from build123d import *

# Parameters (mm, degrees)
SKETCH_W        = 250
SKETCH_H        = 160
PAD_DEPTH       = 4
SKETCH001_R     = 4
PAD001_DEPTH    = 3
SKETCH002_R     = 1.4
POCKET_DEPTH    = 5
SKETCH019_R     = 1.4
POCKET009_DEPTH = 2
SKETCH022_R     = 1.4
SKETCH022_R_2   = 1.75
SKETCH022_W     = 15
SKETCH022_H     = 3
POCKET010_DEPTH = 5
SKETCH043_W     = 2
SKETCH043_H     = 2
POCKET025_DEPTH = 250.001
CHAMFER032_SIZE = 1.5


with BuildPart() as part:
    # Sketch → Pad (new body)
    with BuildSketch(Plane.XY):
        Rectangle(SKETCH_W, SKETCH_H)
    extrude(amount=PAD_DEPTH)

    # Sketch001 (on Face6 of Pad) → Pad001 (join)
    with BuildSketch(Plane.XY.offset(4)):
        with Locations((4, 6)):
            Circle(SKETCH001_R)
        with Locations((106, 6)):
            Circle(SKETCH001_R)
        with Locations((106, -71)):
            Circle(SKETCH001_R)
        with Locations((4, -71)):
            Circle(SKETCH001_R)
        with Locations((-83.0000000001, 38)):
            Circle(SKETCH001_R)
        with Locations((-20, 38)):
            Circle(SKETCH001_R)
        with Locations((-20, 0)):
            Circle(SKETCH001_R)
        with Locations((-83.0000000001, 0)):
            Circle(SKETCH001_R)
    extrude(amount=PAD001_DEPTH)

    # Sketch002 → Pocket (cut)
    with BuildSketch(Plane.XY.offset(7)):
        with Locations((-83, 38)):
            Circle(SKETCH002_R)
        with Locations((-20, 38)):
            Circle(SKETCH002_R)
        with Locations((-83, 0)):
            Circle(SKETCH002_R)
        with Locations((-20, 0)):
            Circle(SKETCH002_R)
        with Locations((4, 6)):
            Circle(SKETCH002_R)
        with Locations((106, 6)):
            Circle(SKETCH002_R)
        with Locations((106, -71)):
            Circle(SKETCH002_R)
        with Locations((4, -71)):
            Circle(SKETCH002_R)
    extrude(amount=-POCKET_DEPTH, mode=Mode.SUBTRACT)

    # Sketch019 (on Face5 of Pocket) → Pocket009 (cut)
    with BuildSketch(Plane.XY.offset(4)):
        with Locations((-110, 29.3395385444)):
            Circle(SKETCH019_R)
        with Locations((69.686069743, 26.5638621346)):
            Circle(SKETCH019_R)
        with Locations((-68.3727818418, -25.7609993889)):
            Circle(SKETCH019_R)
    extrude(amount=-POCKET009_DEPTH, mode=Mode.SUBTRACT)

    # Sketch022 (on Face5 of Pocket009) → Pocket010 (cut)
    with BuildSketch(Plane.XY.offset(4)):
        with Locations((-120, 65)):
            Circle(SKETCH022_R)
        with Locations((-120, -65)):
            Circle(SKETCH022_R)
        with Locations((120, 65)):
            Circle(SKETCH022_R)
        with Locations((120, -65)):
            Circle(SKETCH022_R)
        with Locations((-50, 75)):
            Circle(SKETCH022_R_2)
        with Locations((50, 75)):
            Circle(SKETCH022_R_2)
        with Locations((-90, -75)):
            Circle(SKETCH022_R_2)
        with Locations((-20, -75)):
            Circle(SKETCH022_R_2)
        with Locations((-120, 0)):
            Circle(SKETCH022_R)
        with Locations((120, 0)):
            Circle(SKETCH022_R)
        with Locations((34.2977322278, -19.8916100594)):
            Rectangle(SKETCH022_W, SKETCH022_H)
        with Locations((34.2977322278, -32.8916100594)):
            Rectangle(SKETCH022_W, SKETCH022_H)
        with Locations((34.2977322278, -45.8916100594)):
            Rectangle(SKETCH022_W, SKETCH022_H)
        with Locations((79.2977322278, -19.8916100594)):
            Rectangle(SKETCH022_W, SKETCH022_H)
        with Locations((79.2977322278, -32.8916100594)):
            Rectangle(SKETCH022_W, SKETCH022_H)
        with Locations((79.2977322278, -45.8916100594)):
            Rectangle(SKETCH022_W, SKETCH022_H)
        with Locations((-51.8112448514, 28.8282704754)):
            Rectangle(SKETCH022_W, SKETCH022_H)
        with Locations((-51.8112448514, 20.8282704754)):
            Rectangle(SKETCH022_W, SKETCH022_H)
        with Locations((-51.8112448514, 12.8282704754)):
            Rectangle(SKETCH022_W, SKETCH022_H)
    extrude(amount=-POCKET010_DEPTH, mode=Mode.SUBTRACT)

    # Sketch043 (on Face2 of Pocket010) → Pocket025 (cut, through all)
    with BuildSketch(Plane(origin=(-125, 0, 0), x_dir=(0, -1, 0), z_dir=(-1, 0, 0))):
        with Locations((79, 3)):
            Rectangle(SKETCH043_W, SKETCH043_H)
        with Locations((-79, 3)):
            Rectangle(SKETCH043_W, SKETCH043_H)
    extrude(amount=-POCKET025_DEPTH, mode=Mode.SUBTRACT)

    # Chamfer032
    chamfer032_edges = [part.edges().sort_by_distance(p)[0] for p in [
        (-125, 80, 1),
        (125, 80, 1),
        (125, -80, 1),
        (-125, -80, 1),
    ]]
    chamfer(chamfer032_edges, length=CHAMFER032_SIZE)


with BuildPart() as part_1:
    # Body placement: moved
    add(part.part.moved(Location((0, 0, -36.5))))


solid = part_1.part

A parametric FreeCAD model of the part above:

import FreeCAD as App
import Part
import Sketcher

V = App.Vector
Q = App.Units.Quantity


def edges_at(feature, points):
    """Names of the edges that pass closest to the given points."""
    edges = feature.Shape.Edges
    near = lambda p: min(range(len(edges)), key=lambda i: edges[i].distToShape(Part.Vertex(*p))[0])
    return sorted({f"Edge{near(p) + 1}" for p in points})

doc = App.newDocument("Part")
body = doc.addObject("PartDesign::Body", "Body")

# Sketch on XY plane
sketch1 = body.newObject("Sketcher::SketchObject", "Sketch")
sketch1.AttachmentSupport = (doc.getObject("XY_Plane"), [""])
sketch1.MapMode = "FlatFace"
sketch1.addGeometry(Part.LineSegment(V(-125, 80, 0), V(-125, -80, 0)), False)
sketch1.addGeometry(Part.LineSegment(V(-125, -80, 0), V(125, -80, 0)), False)
sketch1.addGeometry(Part.LineSegment(V(125, -80, 0), V(125, 80, 0)), False)
sketch1.addGeometry(Part.LineSegment(V(125, 80, 0), V(-125, 80, 0)), False)
sketch1.addConstraint(Sketcher.Constraint("Coincident", 0, 2, 1, 1))
sketch1.addConstraint(Sketcher.Constraint("Coincident", 1, 2, 2, 1))
sketch1.addConstraint(Sketcher.Constraint("Coincident", 2, 2, 3, 1))
sketch1.addConstraint(Sketcher.Constraint("Coincident", 3, 2, 0, 1))
sketch1.addConstraint(Sketcher.Constraint("Vertical", 0))
sketch1.addConstraint(Sketcher.Constraint("Horizontal", 1))
sketch1.addConstraint(Sketcher.Constraint("Vertical", 2))
sketch1.addConstraint(Sketcher.Constraint("Horizontal", 3))
sketch1.addConstraint(Sketcher.Constraint("Symmetric", 0, 2, 2, 2, -1, 1))
sketch1.addConstraint(Sketcher.Constraint("DistanceX", 1, 1, 1, 2, Q("250 mm")))
sketch1.addConstraint(Sketcher.Constraint("DistanceY", 0, 2, 0, 1, Q("160 mm")))
pad1 = body.newObject("PartDesign::Pad", "Pad")
pad1.Profile = sketch1
pad1.Length = 4

# Sketch on XY plane
sketch2 = body.newObject("Sketcher::SketchObject", "Sketch001")
sketch2.AttachmentSupport = (doc.getObject("XY_Plane"), [""])
sketch2.MapMode = "FlatFace"
sketch2.AttachmentOffset = App.Placement(V(0, 0, 4), App.Rotation())
sketch2.addGeometry(Part.Circle(V(4, 6, 0), V(0, 0, 1), 4), False)
sketch2.addGeometry(Part.Circle(V(106, 6, 0), V(0, 0, 1), 4), False)
sketch2.addGeometry(Part.Circle(V(106, -71, 0), V(0, 0, 1), 4), False)
sketch2.addGeometry(Part.Circle(V(4, -71, 0), V(0, 0, 1), 4), False)
sketch2.addGeometry(Part.Circle(V(-83, 38, 0), V(0, 0, 1), 4), False)
sketch2.addGeometry(Part.Circle(V(-20, 38, 0), V(0, 0, 1), 4), False)
sketch2.addGeometry(Part.Circle(V(-20, 0, 0), V(0, 0, 1), 4), False)
sketch2.addGeometry(Part.Circle(V(-83, 0, 0), V(0, 0, 1), 4), False)
sketch2.addConstraint(Sketcher.Constraint("Equal", 0, 1))
sketch2.addConstraint(Sketcher.Constraint("Equal", 1, 2))
sketch2.addConstraint(Sketcher.Constraint("Equal", 2, 3))
sketch2.addConstraint(Sketcher.Constraint("Equal", 3, 4))
sketch2.addConstraint(Sketcher.Constraint("Equal", 4, 5))
sketch2.addConstraint(Sketcher.Constraint("Equal", 5, 6))
sketch2.addConstraint(Sketcher.Constraint("Equal", 6, 7))
sketch2.addConstraint(Sketcher.Constraint("PointOnObject", 6, 3, -1))
sketch2.addConstraint(Sketcher.Constraint("PointOnObject", 7, 3, -1))
sketch2.addConstraint(Sketcher.Constraint("Horizontal", 0, 3, 1, 3))
sketch2.addConstraint(Sketcher.Constraint("Horizontal", 2, 3, 3, 3))
sketch2.addConstraint(Sketcher.Constraint("Horizontal", 4, 3, 5, 3))
sketch2.addConstraint(Sketcher.Constraint("Vertical", 1, 3, 2, 3))
sketch2.addConstraint(Sketcher.Constraint("Vertical", 0, 3, 3, 3))
sketch2.addConstraint(Sketcher.Constraint("Vertical", 5, 3, 6, 3))
sketch2.addConstraint(Sketcher.Constraint("Vertical", 4, 3, 7, 3))
sketch2.addConstraint(Sketcher.Constraint("Diameter", 0, Q("8 mm")))
sketch2.addConstraint(Sketcher.Constraint("DistanceX", -1, 1, 0, 3, Q("4 mm")))
sketch2.addConstraint(Sketcher.Constraint("DistanceY", -1, 1, 0, 3, Q("6 mm")))
sketch2.addConstraint(Sketcher.Constraint("DistanceX", -1, 1, 1, 3, Q("106 mm")))
sketch2.addConstraint(Sketcher.Constraint("DistanceY", 2, 3, -1, 1, Q("71 mm")))
sketch2.addConstraint(Sketcher.Constraint("DistanceX", 4, 3, -1, 1, Q("83 mm")))
sketch2.addConstraint(Sketcher.Constraint("DistanceY", -1, 1, 4, 3, Q("38 mm")))
sketch2.addConstraint(Sketcher.Constraint("DistanceX", 5, 3, -1, 1, Q("20 mm")))
pad2 = body.newObject("PartDesign::Pad", "Pad001")
pad2.Profile = sketch2
pad2.Length = 3

# Sketch on XY plane
sketch3 = body.newObject("Sketcher::SketchObject", "Sketch002")
sketch3.AttachmentSupport = (doc.getObject("XY_Plane"), [""])
sketch3.MapMode = "FlatFace"
sketch3.AttachmentOffset = App.Placement(V(0, 0, 7), App.Rotation())
sketch3.addGeometry(Part.Circle(V(-83, 38, 0), V(0, 0, 1), 1.4), False)
sketch3.addGeometry(Part.Circle(V(-20, 38, 0), V(0, 0, 1), 1.4), False)
sketch3.addGeometry(Part.Circle(V(-83, 0, 0), V(0, 0, 1), 1.4), False)
sketch3.addGeometry(Part.Circle(V(-20, 0, 0), V(0, 0, 1), 1.4), False)
sketch3.addGeometry(Part.Circle(V(4, 6, 0), V(0, 0, 1), 1.4), False)
sketch3.addGeometry(Part.Circle(V(106, 6, 0), V(0, 0, 1), 1.4), False)
sketch3.addGeometry(Part.Circle(V(106, -71, 0), V(0, 0, 1), 1.4), False)
sketch3.addGeometry(Part.Circle(V(4, -71, 0), V(0, 0, 1), 1.4), False)
sketch3.addConstraint(Sketcher.Constraint("Equal", 0, 1))
sketch3.addConstraint(Sketcher.Constraint("Equal", 1, 2))
sketch3.addConstraint(Sketcher.Constraint("Equal", 2, 3))
sketch3.addConstraint(Sketcher.Constraint("Equal", 3, 4))
sketch3.addConstraint(Sketcher.Constraint("Equal", 4, 5))
sketch3.addConstraint(Sketcher.Constraint("Equal", 5, 6))
sketch3.addConstraint(Sketcher.Constraint("Equal", 6, 7))
sketch3.addConstraint(Sketcher.Constraint("PointOnObject", 2, 3, -1))
sketch3.addConstraint(Sketcher.Constraint("PointOnObject", 3, 3, -1))
sketch3.addConstraint(Sketcher.Constraint("Horizontal", 0, 3, 1, 3))
sketch3.addConstraint(Sketcher.Constraint("Horizontal", 4, 3, 5, 3))
sketch3.addConstraint(Sketcher.Constraint("Horizontal", 6, 3, 7, 3))
sketch3.addConstraint(Sketcher.Constraint("Vertical", 0, 3, 2, 3))
sketch3.addConstraint(Sketcher.Constraint("Vertical", 1, 3, 3, 3))
sketch3.addConstraint(Sketcher.Constraint("Vertical", 5, 3, 6, 3))
sketch3.addConstraint(Sketcher.Constraint("Vertical", 4, 3, 7, 3))
sketch3.addConstraint(Sketcher.Constraint("Diameter", 0, Q("2.8 mm")))
sketch3.addConstraint(Sketcher.Constraint("DistanceX", 0, 3, -1, 1, Q("83 mm")))
sketch3.addConstraint(Sketcher.Constraint("DistanceY", -1, 1, 0, 3, Q("38 mm")))
sketch3.addConstraint(Sketcher.Constraint("DistanceX", 1, 3, -1, 1, Q("20 mm")))
sketch3.addConstraint(Sketcher.Constraint("DistanceX", -1, 1, 4, 3, Q("4 mm")))
sketch3.addConstraint(Sketcher.Constraint("DistanceY", -1, 1, 4, 3, Q("6 mm")))
sketch3.addConstraint(Sketcher.Constraint("DistanceX", -1, 1, 5, 3, Q("106 mm")))
sketch3.addConstraint(Sketcher.Constraint("DistanceY", 6, 3, -1, 1, Q("71 mm")))
pocket1 = body.newObject("PartDesign::Pocket", "Pocket")
pocket1.Profile = sketch3
pocket1.Length = 5

# Sketch on XY plane
sketch4 = body.newObject("Sketcher::SketchObject", "Sketch003")
sketch4.AttachmentSupport = (doc.getObject("XY_Plane"), [""])
sketch4.MapMode = "FlatFace"
sketch4.AttachmentOffset = App.Placement(V(0, 0, 4), App.Rotation())
sketch4.addGeometry(Part.Circle(V(-110, 29.3, 0), V(0, 0, 1), 1.4), False)
sketch4.addGeometry(Part.Circle(V(69.7, 26.6, 0), V(0, 0, 1), 1.4), False)
sketch4.addGeometry(Part.Circle(V(-68.4, -25.8, 0), V(0, 0, 1), 1.4), False)
sketch4.addConstraint(Sketcher.Constraint("Equal", 0, 1))
sketch4.addConstraint(Sketcher.Constraint("Equal", 1, 2))
sketch4.addConstraint(Sketcher.Constraint("Diameter", 0, Q("2.8 mm")))
sketch4.addConstraint(Sketcher.Constraint("DistanceX", 0, 3, -1, 1, Q("110 mm")))
sketch4.addConstraint(Sketcher.Constraint("DistanceY", 2, 3, -1, 1, Q("25.760999 mm")))
sketch4.addConstraint(Sketcher.Constraint("DistanceY", -1, 1, 0, 3, Q("29.339539 mm")))
sketch4.addConstraint(Sketcher.Constraint("DistanceX", -1, 1, 1, 3, Q("69.68607 mm")))
sketch4.addConstraint(Sketcher.Constraint("DistanceX", 2, 3, -1, 1, Q("68.372782 mm")))
sketch4.addConstraint(Sketcher.Constraint("DistanceY", 2, 3, 1, 3, Q("52.324862 mm")))
pocket2 = body.newObject("PartDesign::Pocket", "Pocket001")
pocket2.Profile = sketch4
pocket2.Length = 2

# Sketch on XY plane
sketch5 = body.newObject("Sketcher::SketchObject", "Sketch004")
sketch5.AttachmentSupport = (doc.getObject("XY_Plane"), [""])
sketch5.MapMode = "FlatFace"
sketch5.AttachmentOffset = App.Placement(V(0, 0, 4), App.Rotation())
sketch5.addGeometry(Part.Circle(V(-120, 65, 0), V(0, 0, 1), 1.4), False)
sketch5.addGeometry(Part.Circle(V(-120, -65, 0), V(0, 0, 1), 1.4), False)
sketch5.addGeometry(Part.Circle(V(120, 65, 0), V(0, 0, 1), 1.4), False)
sketch5.addGeometry(Part.Circle(V(120, -65, 0), V(0, 0, 1), 1.4), False)
sketch5.addGeometry(Part.Circle(V(-50, 75, 0), V(0, 0, 1), 1.8), False)
sketch5.addGeometry(Part.Circle(V(50, 75, 0), V(0, 0, 1), 1.8), False)
sketch5.addGeometry(Part.Circle(V(-90, -75, 0), V(0, 0, 1), 1.8), False)
sketch5.addGeometry(Part.Circle(V(-20, -75, 0), V(0, 0, 1), 1.8), False)
sketch5.addGeometry(Part.Circle(V(-120, 0, 0), V(0, 0, 1), 1.4), False)
sketch5.addGeometry(Part.Circle(V(120, 0, 0), V(0, 0, 1), 1.4), False)
sketch5.addGeometry(Part.LineSegment(V(26.8, -18.4, 0), V(26.8, -21.4, 0)), False)
sketch5.addGeometry(Part.LineSegment(V(26.8, -21.4, 0), V(41.8, -21.4, 0)), False)
sketch5.addGeometry(Part.LineSegment(V(41.8, -21.4, 0), V(41.8, -18.4, 0)), False)
sketch5.addGeometry(Part.LineSegment(V(41.8, -18.4, 0), V(26.8, -18.4, 0)), False)
sketch5.addGeometry(Part.LineSegment(V(26.8, -31.4, 0), V(26.8, -34.4, 0)), False)
sketch5.addGeometry(Part.LineSegment(V(26.8, -34.4, 0), V(41.8, -34.4, 0)), False)
sketch5.addGeometry(Part.LineSegment(V(41.8, -34.4, 0), V(41.8, -31.4, 0)), False)
sketch5.addGeometry(Part.LineSegment(V(41.8, -31.4, 0), V(26.8, -31.4, 0)), False)
sketch5.addGeometry(Part.LineSegment(V(26.8, -44.4, 0), V(26.8, -47.4, 0)), False)
sketch5.addGeometry(Part.LineSegment(V(26.8, -47.4, 0), V(41.8, -47.4, 0)), False)
sketch5.addGeometry(Part.LineSegment(V(41.8, -47.4, 0), V(41.8, -44.4, 0)), False)
sketch5.addGeometry(Part.LineSegment(V(41.8, -44.4, 0), V(26.8, -44.4, 0)), False)
sketch5.addGeometry(Part.LineSegment(V(71.8, -18.4, 0), V(71.8, -21.4, 0)), False)
sketch5.addGeometry(Part.LineSegment(V(71.8, -21.4, 0), V(86.8, -21.4, 0)), False)
sketch5.addGeometry(Part.LineSegment(V(86.8, -21.4, 0), V(86.8, -18.4, 0)), False)
sketch5.addGeometry(Part.LineSegment(V(86.8, -18.4, 0), V(71.8, -18.4, 0)), False)
sketch5.addGeometry(Part.LineSegment(V(71.8, -31.4, 0), V(71.8, -34.4, 0)), False)
sketch5.addGeometry(Part.LineSegment(V(71.8, -34.4, 0), V(86.8, -34.4, 0)), False)
sketch5.addGeometry(Part.LineSegment(V(86.8, -34.4, 0), V(86.8, -31.4, 0)), False)
sketch5.addGeometry(Part.LineSegment(V(86.8, -31.4, 0), V(71.8, -31.4, 0)), False)
sketch5.addGeometry(Part.LineSegment(V(71.8, -44.4, 0), V(71.8, -47.4, 0)), False)
sketch5.addGeometry(Part.LineSegment(V(71.8, -47.4, 0), V(86.8, -47.4, 0)), False)
sketch5.addGeometry(Part.LineSegment(V(86.8, -47.4, 0), V(86.8, -44.4, 0)), False)
sketch5.addGeometry(Part.LineSegment(V(86.8, -44.4, 0), V(71.8, -44.4, 0)), False)
sketch5.addGeometry(Part.LineSegment(V(-59.3, 30.3, 0), V(-59.3, 27.3, 0)), False)
sketch5.addGeometry(Part.LineSegment(V(-59.3, 27.3, 0), V(-44.3, 27.3, 0)), False)
sketch5.addGeometry(Part.LineSegment(V(-44.3, 27.3, 0), V(-44.3, 30.3, 0)), False)
sketch5.addGeometry(Part.LineSegment(V(-44.3, 30.3, 0), V(-59.3, 30.3, 0)), False)
sketch5.addGeometry(Part.LineSegment(V(-59.3, 22.3, 0), V(-59.3, 19.3, 0)), False)
sketch5.addGeometry(Part.LineSegment(V(-59.3, 19.3, 0), V(-44.3, 19.3, 0)), False)
sketch5.addGeometry(Part.LineSegment(V(-44.3, 19.3, 0), V(-44.3, 22.3, 0)), False)
sketch5.addGeometry(Part.LineSegment(V(-44.3, 22.3, 0), V(-59.3, 22.3, 0)), False)
sketch5.addGeometry(Part.LineSegment(V(-59.3, 14.3, 0), V(-59.3, 11.3, 0)), False)
sketch5.addGeometry(Part.LineSegment(V(-59.3, 11.3, 0), V(-44.3, 11.3, 0)), False)
sketch5.addGeometry(Part.LineSegment(V(-44.3, 11.3, 0), V(-44.3, 14.3, 0)), False)
sketch5.addGeometry(Part.LineSegment(V(-44.3, 14.3, 0), V(-59.3, 14.3, 0)), False)
sketch5.addConstraint(Sketcher.Constraint("Coincident", 10, 2, 11, 1))
sketch5.addConstraint(Sketcher.Constraint("Coincident", 11, 2, 12, 1))
sketch5.addConstraint(Sketcher.Constraint("Coincident", 12, 2, 13, 1))
sketch5.addConstraint(Sketcher.Constraint("Coincident", 13, 2, 10, 1))
sketch5.addConstraint(Sketcher.Constraint("Coincident", 14, 2, 15, 1))
sketch5.addConstraint(Sketcher.Constraint("Coincident", 15, 2, 16, 1))
sketch5.addConstraint(Sketcher.Constraint("Coincident", 16, 2, 17, 1))
sketch5.addConstraint(Sketcher.Constraint("Coincident", 17, 2, 14, 1))
sketch5.addConstraint(Sketcher.Constraint("Coincident", 18, 2, 19, 1))
sketch5.addConstraint(Sketcher.Constraint("Coincident", 19, 2, 20, 1))
sketch5.addConstraint(Sketcher.Constraint("Coincident", 20, 2, 21, 1))
sketch5.addConstraint(Sketcher.Constraint("Coincident", 21, 2, 18, 1))
sketch5.addConstraint(Sketcher.Constraint("Coincident", 22, 2, 23, 1))
sketch5.addConstraint(Sketcher.Constraint("Coincident", 23, 2, 24, 1))
sketch5.addConstraint(Sketcher.Constraint("Coincident", 24, 2, 25, 1))
sketch5.addConstraint(Sketcher.Constraint("Coincident", 25, 2, 22, 1))
sketch5.addConstraint(Sketcher.Constraint("Coincident", 26, 2, 27, 1))
sketch5.addConstraint(Sketcher.Constraint("Coincident", 27, 2, 28, 1))
sketch5.addConstraint(Sketcher.Constraint("Coincident", 28, 2, 29, 1))
sketch5.addConstraint(Sketcher.Constraint("Coincident", 29, 2, 26, 1))
sketch5.addConstraint(Sketcher.Constraint("Coincident", 30, 2, 31, 1))
sketch5.addConstraint(Sketcher.Constraint("Coincident", 31, 2, 32, 1))
sketch5.addConstraint(Sketcher.Constraint("Coincident", 32, 2, 33, 1))
sketch5.addConstraint(Sketcher.Constraint("Coincident", 33, 2, 30, 1))
sketch5.addConstraint(Sketcher.Constraint("Coincident", 34, 2, 35, 1))
sketch5.addConstraint(Sketcher.Constraint("Coincident", 35, 2, 36, 1))
sketch5.addConstraint(Sketcher.Constraint("Coincident", 36, 2, 37, 1))
sketch5.addConstraint(Sketcher.Constraint("Coincident", 37, 2, 34, 1))
sketch5.addConstraint(Sketcher.Constraint("Coincident", 38, 2, 39, 1))
sketch5.addConstraint(Sketcher.Constraint("Coincident", 39, 2, 40, 1))
sketch5.addConstraint(Sketcher.Constraint("Coincident", 40, 2, 41, 1))
sketch5.addConstraint(Sketcher.Constraint("Coincident", 41, 2, 38, 1))
sketch5.addConstraint(Sketcher.Constraint("Coincident", 42, 2, 43, 1))
sketch5.addConstraint(Sketcher.Constraint("Coincident", 43, 2, 44, 1))
sketch5.addConstraint(Sketcher.Constraint("Coincident", 44, 2, 45, 1))
sketch5.addConstraint(Sketcher.Constraint("Coincident", 45, 2, 42, 1))
sketch5.addConstraint(Sketcher.Constraint("Vertical", 10))
sketch5.addConstraint(Sketcher.Constraint("Horizontal", 11))
sketch5.addConstraint(Sketcher.Constraint("Vertical", 12))
sketch5.addConstraint(Sketcher.Constraint("Horizontal", 13))
sketch5.addConstraint(Sketcher.Constraint("Vertical", 14))
sketch5.addConstraint(Sketcher.Constraint("Horizontal", 15))
sketch5.addConstraint(Sketcher.Constraint("Vertical", 16))
sketch5.addConstraint(Sketcher.Constraint("Horizontal", 17))
sketch5.addConstraint(Sketcher.Constraint("Vertical", 18))
sketch5.addConstraint(Sketcher.Constraint("Horizontal", 19))
sketch5.addConstraint(Sketcher.Constraint("Vertical", 20))
sketch5.addConstraint(Sketcher.Constraint("Horizontal", 21))
sketch5.addConstraint(Sketcher.Constraint("Vertical", 22))
sketch5.addConstraint(Sketcher.Constraint("Horizontal", 23))
sketch5.addConstraint(Sketcher.Constraint("Vertical", 24))
sketch5.addConstraint(Sketcher.Constraint("Horizontal", 25))
sketch5.addConstraint(Sketcher.Constraint("Vertical", 26))
sketch5.addConstraint(Sketcher.Constraint("Horizontal", 27))
sketch5.addConstraint(Sketcher.Constraint("Vertical", 28))
sketch5.addConstraint(Sketcher.Constraint("Horizontal", 29))
sketch5.addConstraint(Sketcher.Constraint("Vertical", 30))
sketch5.addConstraint(Sketcher.Constraint("Horizontal", 31))
sketch5.addConstraint(Sketcher.Constraint("Vertical", 32))
sketch5.addConstraint(Sketcher.Constraint("Horizontal", 33))
sketch5.addConstraint(Sketcher.Constraint("Vertical", 34))
sketch5.addConstraint(Sketcher.Constraint("Horizontal", 35))
sketch5.addConstraint(Sketcher.Constraint("Vertical", 36))
sketch5.addConstraint(Sketcher.Constraint("Horizontal", 37))
sketch5.addConstraint(Sketcher.Constraint("Vertical", 38))
sketch5.addConstraint(Sketcher.Constraint("Horizontal", 39))
sketch5.addConstraint(Sketcher.Constraint("Vertical", 40))
sketch5.addConstraint(Sketcher.Constraint("Horizontal", 41))
sketch5.addConstraint(Sketcher.Constraint("Vertical", 42))
sketch5.addConstraint(Sketcher.Constraint("Horizontal", 43))
sketch5.addConstraint(Sketcher.Constraint("Vertical", 44))
sketch5.addConstraint(Sketcher.Constraint("Horizontal", 45))
sketch5.addConstraint(Sketcher.Constraint("Equal", 0, 1))
sketch5.addConstraint(Sketcher.Constraint("Equal", 1, 2))
sketch5.addConstraint(Sketcher.Constraint("Equal", 2, 3))
sketch5.addConstraint(Sketcher.Constraint("Equal", 4, 5))
sketch5.addConstraint(Sketcher.Constraint("Equal", 5, 6))
sketch5.addConstraint(Sketcher.Constraint("Equal", 6, 7))
sketch5.addConstraint(Sketcher.Constraint("Equal", 3, 8))
sketch5.addConstraint(Sketcher.Constraint("Equal", 8, 9))
sketch5.addConstraint(Sketcher.Constraint("Symmetric", 1, 3, 2, 3, -1, 1))
sketch5.addConstraint(Sketcher.Constraint("Symmetric", 0, 3, 3, 3, -1, 1))
sketch5.addConstraint(Sketcher.Constraint("Symmetric", 8, 3, 9, 3, -1, 1))
sketch5.addConstraint(Sketcher.Constraint("Symmetric", 0, 3, 2, 3, -2))
sketch5.addConstraint(Sketcher.Constraint("Symmetric", 4, 3, 5, 3, -2))
sketch5.addConstraint(Sketcher.Constraint("PointOnObject", 8, 3, -1))
sketch5.addConstraint(Sketcher.Constraint("Horizontal", 6, 3, 7, 3))
sketch5.addConstraint(Sketcher.Constraint("Horizontal", 11, 2, 22, 2))
sketch5.addConstraint(Sketcher.Constraint("Horizontal", 13, 2, 24, 2))
sketch5.addConstraint(Sketcher.Constraint("Horizontal", 15, 2, 26, 2))
sketch5.addConstraint(Sketcher.Constraint("Horizontal", 17, 2, 28, 2))
sketch5.addConstraint(Sketcher.Constraint("Horizontal", 19, 2, 30, 2))
sketch5.addConstraint(Sketcher.Constraint("Horizontal", 21, 2, 32, 2))
sketch5.addConstraint(Sketcher.Constraint("Vertical", 1, 3, 8, 3))
sketch5.addConstraint(Sketcher.Constraint("Vertical", 13, 2, 14, 2))
sketch5.addConstraint(Sketcher.Constraint("Vertical", 12, 2, 15, 2))
sketch5.addConstraint(Sketcher.Constraint("Vertical", 17, 2, 18, 2))
sketch5.addConstraint(Sketcher.Constraint("Vertical", 16, 2, 19, 2))
sketch5.addConstraint(Sketcher.Constraint("Vertical", 25, 2, 26, 2))
sketch5.addConstraint(Sketcher.Constraint("Vertical", 24, 2, 27, 2))
sketch5.addConstraint(Sketcher.Constraint("Vertical", 29, 2, 30, 2))
sketch5.addConstraint(Sketcher.Constraint("Vertical", 28, 2, 31, 2))
sketch5.addConstraint(Sketcher.Constraint("Vertical", 37, 2, 38, 2))
sketch5.addConstraint(Sketcher.Constraint("Vertical", 36, 2, 39, 2))
sketch5.addConstraint(Sketcher.Constraint("Vertical", 41, 2, 42, 2))
sketch5.addConstraint(Sketcher.Constraint("Vertical", 40, 2, 43, 2))
sketch5.addConstraint(Sketcher.Constraint("Equal", 21, 23))
sketch5.addConstraint(Sketcher.Constraint("Equal", 33, 35))
sketch5.addConstraint(Sketcher.Constraint("Equal", 12, 14))
sketch5.addConstraint(Sketcher.Constraint("Equal", 16, 18))
sketch5.addConstraint(Sketcher.Constraint("Equal", 32, 34))
sketch5.addConstraint(Sketcher.Constraint("Equal", 36, 38))
sketch5.addConstraint(Sketcher.Constraint("Equal", 40, 42))
sketch5.addConstraint(Sketcher.Constraint("Diameter", 0, Q("2.8 mm")))
sketch5.addConstraint(Sketcher.Constraint("Diameter", 4, Q("3.5 mm")))
sketch5.addConstraint(Sketcher.Constraint("DistanceX", 11, 1, 11, 2, Q("15 mm")))
sketch5.addConstraint(Sketcher.Constraint("DistanceY", 10, 2, 10, 1, Q("3 mm")))
sketch5.addConstraint(Sketcher.Constraint("DistanceX", 0, 3, -1, 1, Q("120 mm")))
sketch5.addConstraint(Sketcher.Constraint("DistanceY", -1, 1, 0, 3, Q("65 mm")))
sketch5.addConstraint(Sketcher.Constraint("DistanceX", 4, 3, -1, 1, Q("50 mm")))
sketch5.addConstraint(Sketcher.Constraint("DistanceY", -1, 1, 4, 3, Q("75 mm")))
sketch5.addConstraint(Sketcher.Constraint("DistanceX", 6, 3, -1, 1, Q("90 mm")))
sketch5.addConstraint(Sketcher.Constraint("DistanceY", 6, 3, -1, 1, Q("75 mm")))
sketch5.addConstraint(Sketcher.Constraint("DistanceX", 7, 3, -1, 1, Q("20 mm")))
sketch5.addConstraint(Sketcher.Constraint("DistanceY", 14, 2, 10, 2, Q("13 mm")))
sketch5.addConstraint(Sketcher.Constraint("DistanceY", 18, 2, 14, 2, Q("13 mm")))
sketch5.addConstraint(Sketcher.Constraint("DistanceX", 11, 2, 22, 2, Q("30 mm")))
sketch5.addConstraint(Sketcher.Constraint("DistanceY", 38, 2, 34, 2, Q("8 mm")))
sketch5.addConstraint(Sketcher.Constraint("DistanceY", 42, 2, 38, 2, Q("8 mm")))
sketch5.addConstraint(Sketcher.Constraint("DistanceY", 10, 2, -1, 1, Q("21.39161 mm")))
sketch5.addConstraint(Sketcher.Constraint("DistanceY", -1, 1, 34, 2, Q("27.32827 mm")))
sketch5.addConstraint(Sketcher.Constraint("DistanceX", -1, 1, 10, 2, Q("26.797732 mm")))
sketch5.addConstraint(Sketcher.Constraint("DistanceX", 34, 2, -1, 1, Q("59.311245 mm")))
pocket3 = body.newObject("PartDesign::Pocket", "Pocket002")
pocket3.Profile = sketch5
pocket3.Length = 5

# Sketch on YZ plane
sketch6 = body.newObject("Sketcher::SketchObject", "Sketch005")
sketch6.AttachmentSupport = (doc.getObject("YZ_Plane"), [""])
sketch6.MapMode = "FlatFace"
sketch6.AttachmentOffset = App.Placement(V(0, 0, -125), App.Rotation())
sketch6.addGeometry(Part.LineSegment(V(-78, 4, 0), V(-78, 2, 0)), False)
sketch6.addGeometry(Part.LineSegment(V(-78, 2, 0), V(-80, 2, 0)), False)
sketch6.addGeometry(Part.LineSegment(V(-80, 2, 0), V(-80, 4, 0)), False)
sketch6.addGeometry(Part.LineSegment(V(-80, 4, 0), V(-78, 4, 0)), False)
sketch6.addGeometry(Part.LineSegment(V(80, 4, 0), V(80, 2, 0)), False)
sketch6.addGeometry(Part.LineSegment(V(80, 2, 0), V(78, 2, 0)), False)
sketch6.addGeometry(Part.LineSegment(V(78, 2, 0), V(78, 4, 0)), False)
sketch6.addGeometry(Part.LineSegment(V(78, 4, 0), V(80, 4, 0)), False)
sketch6.addConstraint(Sketcher.Constraint("Coincident", 0, 2, 1, 1))
sketch6.addConstraint(Sketcher.Constraint("Coincident", 1, 2, 2, 1))
sketch6.addConstraint(Sketcher.Constraint("Coincident", 2, 2, 3, 1))
sketch6.addConstraint(Sketcher.Constraint("Coincident", 3, 2, 0, 1))
sketch6.addConstraint(Sketcher.Constraint("Coincident", 4, 2, 5, 1))
sketch6.addConstraint(Sketcher.Constraint("Coincident", 5, 2, 6, 1))
sketch6.addConstraint(Sketcher.Constraint("Coincident", 6, 2, 7, 1))
sketch6.addConstraint(Sketcher.Constraint("Coincident", 7, 2, 4, 1))
sketch6.addConstraint(Sketcher.Constraint("Vertical", 0))
sketch6.addConstraint(Sketcher.Constraint("Horizontal", 1))
sketch6.addConstraint(Sketcher.Constraint("Vertical", 2))
sketch6.addConstraint(Sketcher.Constraint("Horizontal", 3))
sketch6.addConstraint(Sketcher.Constraint("Vertical", 4))
sketch6.addConstraint(Sketcher.Constraint("Horizontal", 5))
sketch6.addConstraint(Sketcher.Constraint("Vertical", 6))
sketch6.addConstraint(Sketcher.Constraint("Horizontal", 7))
sketch6.addConstraint(Sketcher.Constraint("Symmetric", 1, 2, 4, 2, -2))
sketch6.addConstraint(Sketcher.Constraint("Symmetric", 3, 2, 6, 2, -2))
sketch6.addConstraint(Sketcher.Constraint("Equal", 7, 0))
sketch6.addConstraint(Sketcher.Constraint("DistanceX", 1, 2, 1, 1, Q("2 mm")))
sketch6.addConstraint(Sketcher.Constraint("DistanceX", 0, 2, -1, 1, Q("78 mm")))
sketch6.addConstraint(Sketcher.Constraint("DistanceY", -1, 1, 0, 2, Q("2 mm")))
pocket4 = body.newObject("PartDesign::Pocket", "Pocket003")
pocket4.Profile = sketch6
pocket4.Type = "ThroughAll"
pocket4.Reversed = True
doc.recompute()

chamfer = body.newObject("PartDesign::Chamfer", "Chamfer")
chamfer.Base = (pocket4, edges_at(pocket4, [
    (-125, 80, 1),
    (125, 80, 1),
    (125, -80, 1),
    (-125, -80, 1),
]))
chamfer.Size = 1.5
body2 = doc.addObject("PartDesign::Body", "Body001")
doc.recompute()

body.Placement = App.Placement(V(0, 0, -36.5), App.Rotation(V(0, 0, 1), 0))
boolean = body2.newObject("PartDesign::Boolean", "Boolean")
boolean.Type = "Fuse"
boolean.addObjects([body])

doc.recompute()
